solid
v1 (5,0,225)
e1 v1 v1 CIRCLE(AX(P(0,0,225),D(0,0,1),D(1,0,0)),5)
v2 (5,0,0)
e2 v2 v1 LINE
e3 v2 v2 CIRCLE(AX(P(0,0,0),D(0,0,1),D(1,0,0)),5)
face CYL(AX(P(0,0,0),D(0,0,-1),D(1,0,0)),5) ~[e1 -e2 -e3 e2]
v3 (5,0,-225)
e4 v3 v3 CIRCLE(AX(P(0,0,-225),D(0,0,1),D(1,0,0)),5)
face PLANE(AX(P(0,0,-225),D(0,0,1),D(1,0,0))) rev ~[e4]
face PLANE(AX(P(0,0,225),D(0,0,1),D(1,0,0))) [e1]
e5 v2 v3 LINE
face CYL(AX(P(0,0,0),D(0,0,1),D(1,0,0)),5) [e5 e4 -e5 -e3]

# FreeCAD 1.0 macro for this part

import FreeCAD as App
import Part
import Sketcher
from FreeCAD import Vector

doc = App.newDocument("Part")
params = doc.addObject("Spreadsheet::Sheet", "Params")
for row, (alias, value) in enumerate([
    ("sketch1_diameter", "10 mm"),
    ("pad1_length", "450 mm"),
], start=1):
    params.set(f"A{row}", alias)
    params.set(f"B{row}", "=" + value)
    params.setAlias(f"B{row}", alias)

body = doc.addObject("PartDesign::Body", "Body")

# Sketch on XY plane
sketch1 = doc.addObject("Sketcher::SketchObject", "Sketch")
body.addObject(sketch1)
sketch1.AttachmentSupport = (doc.XY_Plane, [""])
sketch1.MapMode = "FlatFace"
sketch1.addGeometry(Part.Circle(Vector(0, 0, 0), Vector(0, 0, 1), 5), False)
sketch1.addConstraint([
    Sketcher.Constraint("Coincident", 0, 3, -1, 1),
    Sketcher.Constraint("Diameter", 0, 10.0),
])
sketch1.setExpression("Constraints[1]", "Params.sketch1_diameter")
pad1 = doc.addObject("PartDesign::Pad", "Pad")
body.addObject(pad1)
pad1.Profile = sketch1
pad1.setExpression("Length", "Params.pad1_length")
pad1.Midplane = True

doc.recompute()
